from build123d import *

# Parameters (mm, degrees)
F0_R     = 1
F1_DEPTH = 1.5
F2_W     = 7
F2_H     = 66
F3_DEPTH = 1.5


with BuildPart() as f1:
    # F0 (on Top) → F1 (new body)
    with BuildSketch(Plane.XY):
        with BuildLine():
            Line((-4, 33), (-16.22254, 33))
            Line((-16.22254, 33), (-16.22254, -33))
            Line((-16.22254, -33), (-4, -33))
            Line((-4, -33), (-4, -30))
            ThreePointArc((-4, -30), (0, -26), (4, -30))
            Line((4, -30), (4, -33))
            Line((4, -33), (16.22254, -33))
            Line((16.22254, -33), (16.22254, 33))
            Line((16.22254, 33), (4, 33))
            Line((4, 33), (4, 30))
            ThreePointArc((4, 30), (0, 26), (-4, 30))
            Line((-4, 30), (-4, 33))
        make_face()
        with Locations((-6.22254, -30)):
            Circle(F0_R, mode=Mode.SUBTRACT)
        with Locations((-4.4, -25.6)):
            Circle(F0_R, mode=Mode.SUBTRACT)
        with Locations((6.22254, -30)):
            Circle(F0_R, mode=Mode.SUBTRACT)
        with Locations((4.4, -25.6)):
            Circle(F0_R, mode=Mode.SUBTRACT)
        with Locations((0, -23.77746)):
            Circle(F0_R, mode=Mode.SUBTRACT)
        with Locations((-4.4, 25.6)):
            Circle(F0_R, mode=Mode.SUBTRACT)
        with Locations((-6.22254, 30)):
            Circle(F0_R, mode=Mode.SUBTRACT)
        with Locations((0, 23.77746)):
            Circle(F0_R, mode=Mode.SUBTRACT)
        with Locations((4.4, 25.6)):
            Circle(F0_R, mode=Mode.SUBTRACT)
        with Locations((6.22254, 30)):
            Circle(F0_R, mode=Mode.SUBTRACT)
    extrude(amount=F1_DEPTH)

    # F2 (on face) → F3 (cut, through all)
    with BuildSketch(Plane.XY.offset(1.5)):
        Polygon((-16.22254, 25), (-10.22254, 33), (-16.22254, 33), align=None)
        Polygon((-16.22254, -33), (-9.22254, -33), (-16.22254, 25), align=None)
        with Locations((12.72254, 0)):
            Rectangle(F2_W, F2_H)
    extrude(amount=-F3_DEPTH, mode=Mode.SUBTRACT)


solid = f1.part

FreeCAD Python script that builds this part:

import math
import FreeCAD as App
import Part
import Sketcher

V = App.Vector
Q = App.Units.Quantity

doc = App.newDocument("Part")
body = doc.addObject("PartDesign::Body", "Body")

sketch1 = body.newObject("Sketcher::SketchObject", "Sketch")
sketch1.AttachmentSupport = (doc.getObject("XY_Plane"), [""])
sketch1.MapMode = "FlatFace"
sketch1.addGeometry([
    Part.LineSegment(V(-4, 33, 0), V(-16.22254, 33, 0)),
    Part.LineSegment(V(-16.22254, 33, 0), V(-16.22254, -33, 0)),
    Part.LineSegment(V(-16.22254, -33, 0), V(-4, -33, 0)),
    Part.LineSegment(V(-4, -33, 0), V(-4, -30, 0)),
    Part.ArcOfCircle(Part.Circle(V(0, -30, 0), V(0, 0, 1), 4), math.radians(0), math.radians(180)),
    Part.LineSegment(V(4, -30, 0), V(4, -33, 0)),
    Part.LineSegment(V(4, -33, 0), V(16.22254, -33, 0)),
    Part.LineSegment(V(16.22254, -33, 0), V(16.22254, 33, 0)),
    Part.LineSegment(V(16.22254, 33, 0), V(4, 33, 0)),
    Part.LineSegment(V(4, 33, 0), V(4, 30, 0)),
    Part.ArcOfCircle(Part.Circle(V(0, 30, 0), V(0, 0, 1), 4), math.radians(180), math.radians(360)),
    Part.LineSegment(V(-4, 30, 0), V(-4, 33, 0)),
    Part.Circle(V(-6.22254, -30, 0), V(0, 0, 1), 1),
    Part.Circle(V(-4.4, -25.6, 0), V(0, 0, 1), 1),
    Part.Circle(V(0, -23.77746, 0), V(0, 0, 1), 1),
    Part.Circle(V(4.4, -25.6, 0), V(0, 0, 1), 1),
    Part.Circle(V(6.22254, -30, 0), V(0, 0, 1), 1),
    Part.Circle(V(-6.22254, 30, 0), V(0, 0, 1), 1),
    Part.Circle(V(-4.4, 25.6, 0), V(0, 0, 1), 1),
    Part.Circle(V(0, 23.77746, 0), V(0, 0, 1), 1),
    Part.Circle(V(4.4, 25.6, 0), V(0, 0, 1), 1),
    Part.Circle(V(6.22254, 30, 0), V(0, 0, 1), 1),
], False)
sketch1.addConstraint([
    Sketcher.Constraint("Coincident", 0, 2, 1, 1),
    Sketcher.Constraint("Coincident", 1, 2, 2, 1),
    Sketcher.Constraint("Coincident", 2, 2, 3, 1),
    Sketcher.Constraint("Tangent", 3, 2, 4, 2),
    Sketcher.Constraint("Tangent", 4, 1, 5, 1),
    Sketcher.Constraint("Coincident", 5, 2, 6, 1),
    Sketcher.Constraint("Coincident", 6, 2, 7, 1),
    Sketcher.Constraint("Coincident", 7, 2, 8, 1),
    Sketcher.Constraint("Coincident", 8, 2, 9, 1),
    Sketcher.Constraint("Tangent", 9, 2, 10, 2),
    Sketcher.Constraint("Tangent", 10, 1, 11, 1),
    Sketcher.Constraint("Coincident", 11, 2, 0, 1),
    Sketcher.Constraint("Horizontal", 0),
    Sketcher.Constraint("Vertical", 1),
    Sketcher.Constraint("Horizontal", 2),
    Sketcher.Constraint("Vertical", 3),
    Sketcher.Constraint("Vertical", 5),
    Sketcher.Constraint("Horizontal", 6),
    Sketcher.Constraint("Vertical", 7),
    Sketcher.Constraint("Horizontal", 8),
    Sketcher.Constraint("Vertical", 9),
    Sketcher.Constraint("Vertical", 11),
    Sketcher.Constraint("Equal", 4, 10),
    Sketcher.Constraint("Equal", 12, 13),
    Sketcher.Constraint("Equal", 13, 14),
    Sketcher.Constraint("Equal", 14, 15),
    Sketcher.Constraint("Equal", 15, 16),
    Sketcher.Constraint("Equal", 16, 17),
    Sketcher.Constraint("Equal", 17, 18),
    Sketcher.Constraint("Equal", 18, 19),
    Sketcher.Constraint("Equal", 19, 20),
    Sketcher.Constraint("Equal", 20, 21),
    Sketcher.Constraint("Symmetric", 4, 3, 10, 3, -1, 1),
    Sketcher.Constraint("Symmetric", 16, 3, 17, 3, -1, 1),
    Sketcher.Constraint("Symmetric", 15, 3, 18, 3, -1, 1),
    Sketcher.Constraint("Symmetric", 14, 3, 19, 3, -1, 1),
    Sketcher.Constraint("Symmetric", 13, 3, 20, 3, -1, 1),
    Sketcher.Constraint("Symmetric", 12, 3, 21, 3, -1, 1),
    Sketcher.Constraint("Symmetric", 0, 2, 6, 2, -1, 1),
    Sketcher.Constraint("Symmetric", 13, 3, 15, 3, -2),
    Sketcher.Constraint("Symmetric", 12, 3, 16, 3, -2),
    Sketcher.Constraint("Symmetric", 2, 2, 5, 2, -2),
    Sketcher.Constraint("PointOnObject", 14, 3, -2),
    Sketcher.Constraint("Horizontal", 4, 3, 12, 3),
    Sketcher.Constraint("Horizontal", 0, 2, 7, 2),
    Sketcher.Constraint("Diameter", 12, Q("2 mm")),
    Sketcher.Constraint("Radius", 4, Q("4 mm")),
    Sketcher.Constraint("DistanceY", 1, 2, 1, 1, Q("66 mm")),
    Sketcher.Constraint("DistanceY", 3, 1, 3, 2, Q("3 mm")),
    Sketcher.Constraint("DistanceX", 0, 2, 17, 3, Q("10 mm")),
    Sketcher.Constraint("DistanceX", 13, 3, -1, 1, Q("4.4 mm")),
    Sketcher.Constraint("DistanceY", 13, 3, -1, 1, Q("25.6 mm")),
    Sketcher.Constraint("DistanceX", 0, 2, 0, 1, Q("12.22254 mm")),
    Sketcher.Constraint("DistanceY", 14, 3, -1, 1, Q("23.77746 mm")),
])
pad1 = body.newObject("PartDesign::Pad", "Pad")
pad1.Profile = sketch1
pad1.Length = 1.5

sketch2 = body.newObject("Sketcher::SketchObject", "Sketch001")
sketch2.AttachmentSupport = (doc.getObject("XY_Plane"), [""])
sketch2.MapMode = "FlatFace"
sketch2.AttachmentOffset = App.Placement(V(0, 0, 1.5), App.Rotation())
sketch2.addGeometry([
    Part.LineSegment(V(-16.22254, 25, 0), V(-10.22254, 33, 0)),
    Part.LineSegment(V(-10.22254, 33, 0), V(-16.22254, 33, 0)),
    Part.LineSegment(V(-16.22254, 33, 0), V(-16.22254, 25, 0)),
    Part.LineSegment(V(-16.22254, -33, 0), V(-9.22254, -33, 0)),
    Part.LineSegment(V(-9.22254, -33, 0), V(-16.22254, 25, 0)),
    Part.LineSegment(V(-16.22254, 25, 0), V(-16.22254, -33, 0)),
    Part.LineSegment(V(9.22254, 33, 0), V(9.22254, -33, 0)),
    Part.LineSegment(V(9.22254, -33, 0), V(16.22254, -33, 0)),
    Part.LineSegment(V(16.22254, -33, 0), V(16.22254, 33, 0)),
    Part.LineSegment(V(16.22254, 33, 0), V(9.22254, 33, 0)),
], False)
sketch2.addConstraint([
    Sketcher.Constraint("Coincident", 0, 2, 1, 1),
    Sketcher.Constraint("Coincident", 1, 2, 2, 1),
    Sketcher.Constraint("Coincident", 2, 2, 0, 1),
    Sketcher.Constraint("Coincident", 3, 2, 4, 1),
    Sketcher.Constraint("Coincident", 4, 2, 5, 1),
    Sketcher.Constraint("Coincident", 5, 2, 3, 1),
    Sketcher.Constraint("Coincident", 6, 2, 7, 1),
    Sketcher.Constraint("Coincident", 7, 2, 8, 1),
    Sketcher.Constraint("Coincident", 8, 2, 9, 1),
    Sketcher.Constraint("Coincident", 9, 2, 6, 1),
    Sketcher.Constraint("Horizontal", 1),
    Sketcher.Constraint("Vertical", 2),
    Sketcher.Constraint("Horizontal", 3),
    Sketcher.Constraint("Vertical", 5),
    Sketcher.Constraint("Vertical", 6),
    Sketcher.Constraint("Horizontal", 7),
    Sketcher.Constraint("Vertical", 8),
    Sketcher.Constraint("Horizontal", 9),
    Sketcher.Constraint("Coincident", 4, 2, 2, 2),
    Sketcher.Constraint("Symmetric", 1, 2, 7, 2, -1, 1),
    Sketcher.Constraint("Symmetric", 3, 2, 9, 2, -1, 1),
    Sketcher.Constraint("Horizontal", 5, 2, 6, 2),
    Sketcher.Constraint("DistanceX", 1, 2, 1, 1, Q("6 mm")),
    Sketcher.Constraint("DistanceX", 3, 1, 3, 2, Q("7 mm")),
    Sketcher.Constraint("DistanceY", 2, 2, 2, 1, Q("8 mm")),
    Sketcher.Constraint("DistanceY", 5, 2, 5, 1, Q("58 mm")),
    Sketcher.Constraint("DistanceX", 0, 2, -1, 1, Q("10.22254 mm")),
])
pocket1 = body.newObject("PartDesign::Pocket", "Pocket")
pocket1.Profile = sketch2
pocket1.Type = "ThroughAll"

doc.recompute()
